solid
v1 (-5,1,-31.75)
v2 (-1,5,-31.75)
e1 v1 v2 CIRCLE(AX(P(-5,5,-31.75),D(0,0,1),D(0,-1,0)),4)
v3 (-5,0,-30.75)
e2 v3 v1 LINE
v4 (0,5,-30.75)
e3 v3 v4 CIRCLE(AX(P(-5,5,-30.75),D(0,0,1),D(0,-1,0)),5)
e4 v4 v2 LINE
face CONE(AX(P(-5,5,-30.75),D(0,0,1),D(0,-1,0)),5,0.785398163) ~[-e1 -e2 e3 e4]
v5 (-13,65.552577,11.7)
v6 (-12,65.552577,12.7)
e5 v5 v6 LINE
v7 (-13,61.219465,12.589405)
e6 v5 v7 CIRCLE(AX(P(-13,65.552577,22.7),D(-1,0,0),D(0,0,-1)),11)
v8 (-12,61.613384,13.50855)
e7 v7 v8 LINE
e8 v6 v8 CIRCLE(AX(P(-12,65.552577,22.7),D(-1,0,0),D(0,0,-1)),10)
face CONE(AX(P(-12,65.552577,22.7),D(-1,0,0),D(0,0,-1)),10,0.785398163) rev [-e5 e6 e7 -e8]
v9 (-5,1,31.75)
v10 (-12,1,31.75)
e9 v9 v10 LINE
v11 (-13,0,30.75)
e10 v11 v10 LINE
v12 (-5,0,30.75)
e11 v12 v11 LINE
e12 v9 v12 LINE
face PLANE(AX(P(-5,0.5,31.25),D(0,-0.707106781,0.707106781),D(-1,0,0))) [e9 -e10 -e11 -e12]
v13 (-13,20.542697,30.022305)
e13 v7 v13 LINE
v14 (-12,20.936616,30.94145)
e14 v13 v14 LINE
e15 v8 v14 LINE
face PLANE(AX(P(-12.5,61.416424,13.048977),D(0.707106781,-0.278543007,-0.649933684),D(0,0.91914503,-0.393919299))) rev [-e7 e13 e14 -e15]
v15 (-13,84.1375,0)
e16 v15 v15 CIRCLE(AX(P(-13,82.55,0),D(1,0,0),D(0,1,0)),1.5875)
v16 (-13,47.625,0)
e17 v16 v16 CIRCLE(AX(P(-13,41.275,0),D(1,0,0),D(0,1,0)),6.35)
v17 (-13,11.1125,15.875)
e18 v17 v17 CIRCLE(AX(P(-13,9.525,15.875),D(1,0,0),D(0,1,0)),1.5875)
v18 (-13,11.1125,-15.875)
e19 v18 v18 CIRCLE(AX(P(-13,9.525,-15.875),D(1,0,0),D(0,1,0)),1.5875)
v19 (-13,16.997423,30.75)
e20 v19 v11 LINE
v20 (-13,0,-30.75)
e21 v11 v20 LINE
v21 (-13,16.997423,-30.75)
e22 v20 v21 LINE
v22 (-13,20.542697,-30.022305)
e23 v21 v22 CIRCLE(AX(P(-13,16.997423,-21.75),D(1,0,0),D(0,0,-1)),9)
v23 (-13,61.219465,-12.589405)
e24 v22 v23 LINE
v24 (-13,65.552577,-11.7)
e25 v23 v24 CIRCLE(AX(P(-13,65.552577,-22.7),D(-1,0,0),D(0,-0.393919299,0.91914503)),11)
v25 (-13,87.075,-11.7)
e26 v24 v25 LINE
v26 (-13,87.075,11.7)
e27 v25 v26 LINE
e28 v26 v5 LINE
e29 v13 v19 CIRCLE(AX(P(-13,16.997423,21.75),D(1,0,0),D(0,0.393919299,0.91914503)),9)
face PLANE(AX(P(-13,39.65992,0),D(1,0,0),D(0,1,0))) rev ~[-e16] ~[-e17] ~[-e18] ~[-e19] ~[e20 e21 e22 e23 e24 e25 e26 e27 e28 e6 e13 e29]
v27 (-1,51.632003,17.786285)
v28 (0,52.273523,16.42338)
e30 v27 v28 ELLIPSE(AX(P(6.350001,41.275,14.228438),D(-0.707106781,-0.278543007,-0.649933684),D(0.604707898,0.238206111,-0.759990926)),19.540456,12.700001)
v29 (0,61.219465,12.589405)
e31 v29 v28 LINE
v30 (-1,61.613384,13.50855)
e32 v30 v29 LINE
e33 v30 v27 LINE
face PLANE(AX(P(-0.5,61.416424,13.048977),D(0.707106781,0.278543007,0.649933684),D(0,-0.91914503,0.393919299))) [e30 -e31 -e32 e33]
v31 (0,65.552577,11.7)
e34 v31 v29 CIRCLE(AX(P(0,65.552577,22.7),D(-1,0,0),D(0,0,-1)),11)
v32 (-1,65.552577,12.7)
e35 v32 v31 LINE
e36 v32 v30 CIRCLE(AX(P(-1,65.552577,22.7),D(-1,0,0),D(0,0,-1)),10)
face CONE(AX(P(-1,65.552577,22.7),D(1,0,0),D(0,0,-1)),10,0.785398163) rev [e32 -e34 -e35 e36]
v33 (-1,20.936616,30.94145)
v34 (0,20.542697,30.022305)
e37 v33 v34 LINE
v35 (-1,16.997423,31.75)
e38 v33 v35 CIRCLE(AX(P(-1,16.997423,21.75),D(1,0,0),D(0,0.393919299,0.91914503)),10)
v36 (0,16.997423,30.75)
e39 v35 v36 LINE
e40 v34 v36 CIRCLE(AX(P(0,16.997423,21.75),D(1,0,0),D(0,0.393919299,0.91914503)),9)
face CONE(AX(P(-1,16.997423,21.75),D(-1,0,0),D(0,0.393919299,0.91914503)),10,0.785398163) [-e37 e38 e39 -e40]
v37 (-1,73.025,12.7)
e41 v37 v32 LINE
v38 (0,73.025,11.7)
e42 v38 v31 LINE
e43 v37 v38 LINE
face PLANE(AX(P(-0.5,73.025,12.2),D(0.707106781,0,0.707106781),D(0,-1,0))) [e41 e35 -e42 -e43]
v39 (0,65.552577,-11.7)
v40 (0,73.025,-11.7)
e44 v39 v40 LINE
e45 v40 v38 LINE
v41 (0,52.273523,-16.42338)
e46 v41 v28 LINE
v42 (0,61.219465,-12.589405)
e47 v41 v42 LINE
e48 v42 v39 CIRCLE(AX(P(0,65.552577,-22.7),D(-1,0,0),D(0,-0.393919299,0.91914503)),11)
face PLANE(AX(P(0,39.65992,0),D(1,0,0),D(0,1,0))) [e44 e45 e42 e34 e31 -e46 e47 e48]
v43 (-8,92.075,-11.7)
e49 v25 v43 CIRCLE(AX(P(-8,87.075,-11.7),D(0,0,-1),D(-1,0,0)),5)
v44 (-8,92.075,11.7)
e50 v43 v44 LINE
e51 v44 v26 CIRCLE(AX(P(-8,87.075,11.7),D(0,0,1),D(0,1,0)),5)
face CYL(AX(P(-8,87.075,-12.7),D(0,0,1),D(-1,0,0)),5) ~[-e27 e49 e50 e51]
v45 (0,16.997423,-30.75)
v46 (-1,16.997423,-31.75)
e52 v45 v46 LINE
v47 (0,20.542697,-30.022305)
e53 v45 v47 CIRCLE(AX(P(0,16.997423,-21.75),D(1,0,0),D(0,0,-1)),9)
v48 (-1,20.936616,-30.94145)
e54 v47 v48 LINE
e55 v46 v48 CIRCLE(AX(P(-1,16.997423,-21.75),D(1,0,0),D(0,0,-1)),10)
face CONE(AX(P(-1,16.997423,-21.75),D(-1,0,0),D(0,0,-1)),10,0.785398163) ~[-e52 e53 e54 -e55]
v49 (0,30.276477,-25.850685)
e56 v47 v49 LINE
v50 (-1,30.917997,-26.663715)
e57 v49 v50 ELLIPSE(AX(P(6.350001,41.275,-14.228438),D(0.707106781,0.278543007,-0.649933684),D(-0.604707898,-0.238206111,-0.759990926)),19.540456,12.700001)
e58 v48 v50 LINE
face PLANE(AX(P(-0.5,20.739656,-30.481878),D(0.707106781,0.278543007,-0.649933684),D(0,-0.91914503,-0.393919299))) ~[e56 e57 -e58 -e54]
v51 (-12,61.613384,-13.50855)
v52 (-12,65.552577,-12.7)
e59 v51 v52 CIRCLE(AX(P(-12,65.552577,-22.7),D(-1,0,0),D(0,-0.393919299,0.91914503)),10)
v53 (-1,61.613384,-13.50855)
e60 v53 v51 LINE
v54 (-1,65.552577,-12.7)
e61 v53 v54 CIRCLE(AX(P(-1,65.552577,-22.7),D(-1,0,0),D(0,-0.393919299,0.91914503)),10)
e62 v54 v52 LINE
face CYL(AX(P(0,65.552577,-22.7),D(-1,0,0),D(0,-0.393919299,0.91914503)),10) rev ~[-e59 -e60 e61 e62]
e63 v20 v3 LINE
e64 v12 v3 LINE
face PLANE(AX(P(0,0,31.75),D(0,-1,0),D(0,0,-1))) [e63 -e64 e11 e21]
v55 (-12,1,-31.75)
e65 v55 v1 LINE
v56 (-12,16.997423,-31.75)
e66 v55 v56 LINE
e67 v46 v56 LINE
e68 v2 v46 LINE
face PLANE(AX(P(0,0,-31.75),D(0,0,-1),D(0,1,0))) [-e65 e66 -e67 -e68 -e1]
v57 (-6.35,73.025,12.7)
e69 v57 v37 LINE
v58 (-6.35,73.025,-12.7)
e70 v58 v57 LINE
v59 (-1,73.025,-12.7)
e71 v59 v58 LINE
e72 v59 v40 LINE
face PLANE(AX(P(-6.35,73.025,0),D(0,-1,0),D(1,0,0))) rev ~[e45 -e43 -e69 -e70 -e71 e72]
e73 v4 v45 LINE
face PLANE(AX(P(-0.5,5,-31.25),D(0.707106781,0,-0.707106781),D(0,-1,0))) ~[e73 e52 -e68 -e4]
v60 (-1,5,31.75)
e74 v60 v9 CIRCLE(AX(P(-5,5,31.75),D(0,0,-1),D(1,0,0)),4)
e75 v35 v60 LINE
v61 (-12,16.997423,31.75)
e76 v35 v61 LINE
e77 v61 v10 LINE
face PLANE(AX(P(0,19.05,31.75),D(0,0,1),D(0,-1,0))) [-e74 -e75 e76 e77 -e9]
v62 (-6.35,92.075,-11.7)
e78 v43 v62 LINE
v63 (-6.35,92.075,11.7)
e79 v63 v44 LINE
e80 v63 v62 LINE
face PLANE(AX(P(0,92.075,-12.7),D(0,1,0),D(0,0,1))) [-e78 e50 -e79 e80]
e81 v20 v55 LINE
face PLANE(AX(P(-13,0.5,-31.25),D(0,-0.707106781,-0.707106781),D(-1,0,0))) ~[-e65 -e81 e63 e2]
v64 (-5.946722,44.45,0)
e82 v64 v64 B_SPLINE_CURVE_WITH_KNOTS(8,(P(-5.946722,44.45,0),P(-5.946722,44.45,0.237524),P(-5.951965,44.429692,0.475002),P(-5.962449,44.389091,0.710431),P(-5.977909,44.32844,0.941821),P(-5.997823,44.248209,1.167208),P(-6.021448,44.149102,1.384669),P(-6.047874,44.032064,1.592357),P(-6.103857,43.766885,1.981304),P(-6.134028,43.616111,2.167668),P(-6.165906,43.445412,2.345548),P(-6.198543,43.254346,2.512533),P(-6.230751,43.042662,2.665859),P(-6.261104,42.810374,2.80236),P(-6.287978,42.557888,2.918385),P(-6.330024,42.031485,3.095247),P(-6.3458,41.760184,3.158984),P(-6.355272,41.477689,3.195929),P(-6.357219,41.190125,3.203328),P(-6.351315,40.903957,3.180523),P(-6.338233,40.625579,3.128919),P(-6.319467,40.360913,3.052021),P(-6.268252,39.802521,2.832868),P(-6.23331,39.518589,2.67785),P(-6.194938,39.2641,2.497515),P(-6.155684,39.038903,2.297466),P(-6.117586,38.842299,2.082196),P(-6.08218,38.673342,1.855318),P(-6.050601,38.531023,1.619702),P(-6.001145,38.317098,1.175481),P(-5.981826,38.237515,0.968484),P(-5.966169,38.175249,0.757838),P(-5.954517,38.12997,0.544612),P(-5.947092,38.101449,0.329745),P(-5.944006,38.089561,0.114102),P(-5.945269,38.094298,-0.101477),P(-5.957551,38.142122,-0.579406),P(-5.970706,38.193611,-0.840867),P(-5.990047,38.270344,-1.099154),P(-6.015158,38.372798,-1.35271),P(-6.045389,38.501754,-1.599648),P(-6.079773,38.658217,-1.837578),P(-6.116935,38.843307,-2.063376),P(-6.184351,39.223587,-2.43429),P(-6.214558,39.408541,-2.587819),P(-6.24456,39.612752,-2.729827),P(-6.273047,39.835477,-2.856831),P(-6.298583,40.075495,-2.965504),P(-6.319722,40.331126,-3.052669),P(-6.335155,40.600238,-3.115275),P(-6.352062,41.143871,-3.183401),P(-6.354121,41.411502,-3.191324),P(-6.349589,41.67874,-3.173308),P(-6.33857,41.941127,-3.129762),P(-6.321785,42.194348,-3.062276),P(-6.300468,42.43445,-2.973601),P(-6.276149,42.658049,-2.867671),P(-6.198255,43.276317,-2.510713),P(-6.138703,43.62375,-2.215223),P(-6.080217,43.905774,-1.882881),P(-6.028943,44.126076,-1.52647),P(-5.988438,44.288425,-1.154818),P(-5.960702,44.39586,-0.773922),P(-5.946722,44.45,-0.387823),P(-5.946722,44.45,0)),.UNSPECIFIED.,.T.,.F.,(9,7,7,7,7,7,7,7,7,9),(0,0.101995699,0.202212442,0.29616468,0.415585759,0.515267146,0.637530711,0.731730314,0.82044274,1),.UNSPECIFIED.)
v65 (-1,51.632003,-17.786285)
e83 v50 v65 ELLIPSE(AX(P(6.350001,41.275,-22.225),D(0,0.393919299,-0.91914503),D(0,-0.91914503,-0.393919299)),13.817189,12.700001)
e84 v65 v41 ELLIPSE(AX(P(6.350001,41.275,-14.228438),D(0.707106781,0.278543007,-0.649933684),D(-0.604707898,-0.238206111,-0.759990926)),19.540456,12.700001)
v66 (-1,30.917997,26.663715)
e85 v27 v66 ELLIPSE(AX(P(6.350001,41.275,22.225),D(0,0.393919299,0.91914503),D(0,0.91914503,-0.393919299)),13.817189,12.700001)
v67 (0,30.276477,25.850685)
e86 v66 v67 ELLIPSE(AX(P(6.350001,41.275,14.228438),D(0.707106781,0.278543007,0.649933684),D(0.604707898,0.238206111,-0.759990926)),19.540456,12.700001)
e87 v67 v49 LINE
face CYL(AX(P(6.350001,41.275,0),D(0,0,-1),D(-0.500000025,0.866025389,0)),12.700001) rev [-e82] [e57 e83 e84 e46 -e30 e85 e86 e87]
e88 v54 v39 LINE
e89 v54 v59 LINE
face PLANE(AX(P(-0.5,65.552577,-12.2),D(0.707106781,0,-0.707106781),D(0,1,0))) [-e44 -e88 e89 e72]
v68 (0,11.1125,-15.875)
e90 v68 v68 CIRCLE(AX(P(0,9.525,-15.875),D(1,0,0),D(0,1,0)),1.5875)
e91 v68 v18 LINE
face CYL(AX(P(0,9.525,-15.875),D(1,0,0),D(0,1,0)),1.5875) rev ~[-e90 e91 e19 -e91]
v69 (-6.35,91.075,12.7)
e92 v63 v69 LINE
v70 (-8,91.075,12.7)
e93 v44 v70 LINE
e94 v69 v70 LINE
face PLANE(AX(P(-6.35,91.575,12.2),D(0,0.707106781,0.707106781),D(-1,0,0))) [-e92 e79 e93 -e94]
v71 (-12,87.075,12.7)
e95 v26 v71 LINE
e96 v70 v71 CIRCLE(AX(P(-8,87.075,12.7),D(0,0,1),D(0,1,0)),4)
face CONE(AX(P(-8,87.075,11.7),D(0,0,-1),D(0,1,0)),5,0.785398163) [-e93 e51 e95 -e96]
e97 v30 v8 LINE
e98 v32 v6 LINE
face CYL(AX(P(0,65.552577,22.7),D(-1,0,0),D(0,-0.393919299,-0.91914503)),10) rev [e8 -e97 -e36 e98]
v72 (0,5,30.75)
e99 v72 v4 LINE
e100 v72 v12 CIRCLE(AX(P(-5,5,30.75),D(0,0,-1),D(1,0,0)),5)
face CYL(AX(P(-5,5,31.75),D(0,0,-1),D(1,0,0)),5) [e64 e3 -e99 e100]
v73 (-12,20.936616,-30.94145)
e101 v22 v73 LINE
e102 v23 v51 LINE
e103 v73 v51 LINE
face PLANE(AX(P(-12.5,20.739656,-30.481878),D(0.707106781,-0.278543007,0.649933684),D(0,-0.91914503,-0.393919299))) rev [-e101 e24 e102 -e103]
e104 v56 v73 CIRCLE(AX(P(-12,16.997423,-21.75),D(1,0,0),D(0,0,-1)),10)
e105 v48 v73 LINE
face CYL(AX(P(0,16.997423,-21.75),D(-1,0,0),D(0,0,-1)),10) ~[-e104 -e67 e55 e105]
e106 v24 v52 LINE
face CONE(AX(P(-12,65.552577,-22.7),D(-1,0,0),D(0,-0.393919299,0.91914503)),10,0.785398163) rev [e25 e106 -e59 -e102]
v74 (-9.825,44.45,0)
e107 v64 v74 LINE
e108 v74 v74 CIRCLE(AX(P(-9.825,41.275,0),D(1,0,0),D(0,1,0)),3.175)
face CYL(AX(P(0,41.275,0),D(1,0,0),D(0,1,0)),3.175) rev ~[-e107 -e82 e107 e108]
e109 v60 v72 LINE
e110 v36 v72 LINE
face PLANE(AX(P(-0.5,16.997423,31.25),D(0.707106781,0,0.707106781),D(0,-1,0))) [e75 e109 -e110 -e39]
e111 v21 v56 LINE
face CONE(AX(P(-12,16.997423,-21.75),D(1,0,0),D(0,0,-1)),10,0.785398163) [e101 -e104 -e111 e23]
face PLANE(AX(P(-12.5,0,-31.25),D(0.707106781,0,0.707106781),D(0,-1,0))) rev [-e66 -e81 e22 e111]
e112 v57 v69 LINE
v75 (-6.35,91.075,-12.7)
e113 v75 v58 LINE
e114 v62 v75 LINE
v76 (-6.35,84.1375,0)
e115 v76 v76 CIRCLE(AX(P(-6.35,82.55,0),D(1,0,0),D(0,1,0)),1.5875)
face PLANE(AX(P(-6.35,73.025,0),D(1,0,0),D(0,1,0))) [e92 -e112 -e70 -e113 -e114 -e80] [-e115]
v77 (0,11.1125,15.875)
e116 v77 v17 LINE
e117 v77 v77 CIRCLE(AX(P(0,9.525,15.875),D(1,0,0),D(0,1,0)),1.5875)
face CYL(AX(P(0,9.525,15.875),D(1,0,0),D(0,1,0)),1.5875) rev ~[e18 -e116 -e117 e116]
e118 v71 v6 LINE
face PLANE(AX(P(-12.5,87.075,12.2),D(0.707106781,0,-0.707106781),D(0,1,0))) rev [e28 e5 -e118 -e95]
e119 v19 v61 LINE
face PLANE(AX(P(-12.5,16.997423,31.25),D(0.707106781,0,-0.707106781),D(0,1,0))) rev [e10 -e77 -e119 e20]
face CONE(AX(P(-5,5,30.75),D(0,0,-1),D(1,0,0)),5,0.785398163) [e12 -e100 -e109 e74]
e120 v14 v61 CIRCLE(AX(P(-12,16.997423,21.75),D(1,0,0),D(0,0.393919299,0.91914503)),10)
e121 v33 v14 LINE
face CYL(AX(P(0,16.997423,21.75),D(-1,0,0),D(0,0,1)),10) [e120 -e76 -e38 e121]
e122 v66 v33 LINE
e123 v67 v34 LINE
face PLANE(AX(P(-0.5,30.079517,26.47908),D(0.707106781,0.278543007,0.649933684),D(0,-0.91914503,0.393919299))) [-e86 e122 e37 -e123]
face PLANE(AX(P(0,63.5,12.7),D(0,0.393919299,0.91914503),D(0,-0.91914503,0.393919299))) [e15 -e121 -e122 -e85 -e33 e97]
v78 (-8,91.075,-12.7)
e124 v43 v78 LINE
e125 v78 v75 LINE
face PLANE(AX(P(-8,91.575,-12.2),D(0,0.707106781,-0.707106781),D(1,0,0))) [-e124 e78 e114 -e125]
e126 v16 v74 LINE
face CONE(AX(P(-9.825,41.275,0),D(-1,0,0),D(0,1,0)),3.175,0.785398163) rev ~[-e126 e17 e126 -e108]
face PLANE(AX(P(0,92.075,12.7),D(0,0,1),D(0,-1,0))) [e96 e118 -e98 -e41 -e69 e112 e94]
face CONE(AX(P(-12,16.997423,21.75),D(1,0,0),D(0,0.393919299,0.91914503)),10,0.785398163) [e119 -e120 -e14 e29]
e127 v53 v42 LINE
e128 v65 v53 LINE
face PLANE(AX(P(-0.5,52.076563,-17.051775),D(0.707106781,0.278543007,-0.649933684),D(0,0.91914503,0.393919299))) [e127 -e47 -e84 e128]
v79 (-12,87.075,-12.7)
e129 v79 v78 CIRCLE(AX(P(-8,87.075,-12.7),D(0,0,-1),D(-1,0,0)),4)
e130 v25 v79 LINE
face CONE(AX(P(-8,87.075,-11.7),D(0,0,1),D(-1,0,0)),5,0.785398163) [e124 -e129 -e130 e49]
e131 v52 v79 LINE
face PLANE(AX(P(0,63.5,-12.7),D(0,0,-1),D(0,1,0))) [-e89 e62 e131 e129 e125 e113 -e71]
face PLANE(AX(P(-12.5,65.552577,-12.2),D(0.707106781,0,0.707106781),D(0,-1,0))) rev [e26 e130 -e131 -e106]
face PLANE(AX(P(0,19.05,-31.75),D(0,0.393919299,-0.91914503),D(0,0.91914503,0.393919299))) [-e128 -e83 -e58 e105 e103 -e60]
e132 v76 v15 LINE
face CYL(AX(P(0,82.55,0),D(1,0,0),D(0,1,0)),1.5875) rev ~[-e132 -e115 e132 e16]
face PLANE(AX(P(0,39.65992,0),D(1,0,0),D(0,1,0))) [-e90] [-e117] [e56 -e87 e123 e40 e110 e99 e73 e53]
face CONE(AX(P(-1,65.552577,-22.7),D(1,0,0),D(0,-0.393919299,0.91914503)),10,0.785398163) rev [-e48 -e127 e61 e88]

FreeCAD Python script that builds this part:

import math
import FreeCAD as App
import Part
import Sketcher
from FreeCAD import Vector
Q = App.Units.Quantity


def edges_at(feature, points):
    """Names of the edges that pass closest to the given points."""
    edges = feature.Shape.Edges
    near = lambda p: min(range(len(edges)), key=lambda i: edges[i].distToShape(Part.Vertex(*p))[0])
    return sorted({f"Edge{near(p) + 1}" for p in points})

doc = App.newDocument("Part")
body = doc.addObject("PartDesign::Body", "Body")

# Sketch on YZ plane
sketch1 = body.newObject("Sketcher::SketchObject", "Sketch")
sketch1.AttachmentSupport = (doc.getObject("YZ_Plane"), [""])
sketch1.MapMode = "FlatFace"
sketch1.addGeometry(Part.LineSegment(Vector(0, 31.8, 0), Vector(0, -31.8, 0)), False)
sketch1.addGeometry(Part.LineSegment(Vector(0, -31.8, 0), Vector(19.1, -31.8, 0)), False)
sketch1.addGeometry(Part.LineSegment(Vector(19.1, -31.8, 0), Vector(63.5, -12.7, 0)), False)
sketch1.addGeometry(Part.LineSegment(Vector(63.5, -12.7, 0), Vector(92.1, -12.7, 0)), False)
sketch1.addGeometry(Part.LineSegment(Vector(92.1, -12.7, 0), Vector(92.1, 12.7, 0)), False)
sketch1.addGeometry(Part.LineSegment(Vector(92.1, 12.7, 0), Vector(63.5, 12.7, 0)), False)
sketch1.addGeometry(Part.LineSegment(Vector(63.5, 12.7, 0), Vector(19.1, 31.8, 0)), False)
sketch1.addGeometry(Part.LineSegment(Vector(19.1, 31.8, 0), Vector(0, 31.8, 0)), False)
sketch1.addGeometry(Part.Circle(Vector(9.5, -15.9, 0), Vector(0, 0, 1), 1.6), False)
sketch1.addGeometry(Part.Circle(Vector(41.3, 0, 0), Vector(0, 0, 1), 3.2), False)
sketch1.addGeometry(Part.Circle(Vector(9.5, 15.9, 0), Vector(0, 0, 1), 1.6), False)
sketch1.addGeometry(Part.Circle(Vector(82.5, 0, 0), Vector(0, 0, 1), 1.6), False)
sketch1.addConstraint(Sketcher.Constraint("Coincident", 0, 2, 1, 1))
sketch1.addConstraint(Sketcher.Constraint("Coincident", 1, 2, 2, 1))
sketch1.addConstraint(Sketcher.Constraint("Coincident", 2, 2, 3, 1))
sketch1.addConstraint(Sketcher.Constraint("Coincident", 3, 2, 4, 1))
sketch1.addConstraint(Sketcher.Constraint("Coincident", 4, 2, 5, 1))
sketch1.addConstraint(Sketcher.Constraint("Coincident", 5, 2, 6, 1))
sketch1.addConstraint(Sketcher.Constraint("Coincident", 6, 2, 7, 1))
sketch1.addConstraint(Sketcher.Constraint("Coincident", 7, 2, 0, 1))
sketch1.addConstraint(Sketcher.Constraint("Vertical", 0))
sketch1.addConstraint(Sketcher.Constraint("Horizontal", 1))
sketch1.addConstraint(Sketcher.Constraint("Horizontal", 3))
sketch1.addConstraint(Sketcher.Constraint("Vertical", 4))
sketch1.addConstraint(Sketcher.Constraint("Horizontal", 5))
sketch1.addConstraint(Sketcher.Constraint("Horizontal", 7))
sketch1.addConstraint(Sketcher.Constraint("Equal", 8, 10))
sketch1.addConstraint(Sketcher.Constraint("Equal", 10, 11))
sketch1.addConstraint(Sketcher.Constraint("Symmetric", 0, 2, 7, 2, -1, 1))
sketch1.addConstraint(Sketcher.Constraint("Symmetric", 8, 3, 10, 3, -1))
sketch1.addConstraint(Sketcher.Constraint("Symmetric", 2, 2, 5, 2, -1))
sketch1.addConstraint(Sketcher.Constraint("PointOnObject", 9, 3, -1))
sketch1.addConstraint(Sketcher.Constraint("PointOnObject", 11, 3, -1))
sketch1.addConstraint(Sketcher.Constraint("Vertical", 1, 2, 6, 2))
sketch1.addConstraint(Sketcher.Constraint("Diameter", 9, Q("0.25 in")))
sketch1.addConstraint(Sketcher.Constraint("DistanceY", 4, 1, 4, 2, Q("1 in")))
sketch1.addConstraint(Sketcher.Constraint("Diameter", 8, Q("0.125 in")))
sketch1.addConstraint(Sketcher.Constraint("DistanceY", 0, 2, 0, 1, Q("2.5 in")))
sketch1.addConstraint(Sketcher.Constraint("DistanceX", 9, 3, 3, 2, Q("2 in")))
sketch1.addConstraint(Sketcher.Constraint("DistanceX", 1, 1, 1, 2, Q("0.75 in")))
sketch1.addConstraint(Sketcher.Constraint("DistanceX", -1, 1, 2, 2, Q("2.5 in")))
sketch1.addConstraint(Sketcher.Constraint("DistanceX", 1, 2, 11, 3, Q("2.5 in")))
sketch1.addConstraint(Sketcher.Constraint("DistanceX", 3, 1, 3, 2, Q("1.125 in")))
sketch1.addConstraint(Sketcher.Constraint("DistanceX", 8, 3, 9, 3, Q("1.25 in")))
sketch1.addConstraint(Sketcher.Constraint("DistanceY", 8, 3, 10, 3, Q("1.25 in")))
pad1 = body.newObject("PartDesign::Pad", "Pad")
pad1.Profile = sketch1
pad1.Length = 13
pad1.Reversed = True

# Sketch on XY plane
sketch2 = body.newObject("Sketcher::SketchObject", "Sketch001")
sketch2.AttachmentSupport = (doc.getObject("XY_Plane"), [""])
sketch2.MapMode = "FlatFace"
sketch2.addGeometry(Part.LineSegment(Vector(0, 30, 0), Vector(0, 52, 0)), False)
sketch2.addGeometry(Part.ArcOfCircle(Part.Circle(Vector(6, 41, 0), Vector(0, 0, 1), 13), math.radians(120), math.radians(240)), False)
sketch2.addGeometry(Part.LineSegment(Vector(-6, 92, 0), Vector(-6, 73, 0)), False)
sketch2.addGeometry(Part.LineSegment(Vector(-6, 73, 0), Vector(0, 73, 0)), False)
sketch2.addGeometry(Part.LineSegment(Vector(0, 73, 0), Vector(0, 92, 0)), False)
sketch2.addGeometry(Part.LineSegment(Vector(0, 92, 0), Vector(-6, 92, 0)), False)
sketch2.addConstraint(Sketcher.Constraint("Coincident", 0, 1, 1, 2))
sketch2.addConstraint(Sketcher.Constraint("Coincident", 1, 1, 0, 2))
sketch2.addConstraint(Sketcher.Constraint("Coincident", 2, 2, 3, 1))
sketch2.addConstraint(Sketcher.Constraint("Coincident", 3, 2, 4, 1))
sketch2.addConstraint(Sketcher.Constraint("Coincident", 4, 2, 5, 1))
sketch2.addConstraint(Sketcher.Constraint("Coincident", 5, 2, 2, 1))
sketch2.addConstraint(Sketcher.Constraint("Vertical", 0))
sketch2.addConstraint(Sketcher.Constraint("Vertical", 2))
sketch2.addConstraint(Sketcher.Constraint("Horizontal", 3))
sketch2.addConstraint(Sketcher.Constraint("Vertical", 4))
sketch2.addConstraint(Sketcher.Constraint("Horizontal", 5))
sketch2.addConstraint(Sketcher.Constraint("PointOnObject", 0, 1, -2))
sketch2.addConstraint(Sketcher.Constraint("PointOnObject", 3, 2, -2))
sketch2.addConstraint(Sketcher.Constraint("Radius", 1, Q("0.5 in")))
sketch2.addConstraint(Sketcher.Constraint("DistanceY", 1, 3, 4, 2, Q("2 in")))
sketch2.addConstraint(Sketcher.Constraint("DistanceX", 3, 1, 3, 2, Q("0.25 in")))
sketch2.addConstraint(Sketcher.Constraint("DistanceY", 2, 2, 2, 1, Q("0.75 in")))
sketch2.addConstraint(Sketcher.Constraint("DistanceX", 2, 2, 1, 3, Q("0.5 in")))
sketch2.addConstraint(Sketcher.Constraint("DistanceY", -1, 1, 1, 3, Q("1.625 in")))
pocket1 = body.newObject("PartDesign::Pocket", "Pocket")
pocket1.Profile = sketch2
pocket1.Length = 75
pocket1.Midplane = True
doc.recompute()

fillet = body.newObject("PartDesign::Fillet", "Fillet")
fillet.Base = (pocket1, edges_at(pocket1, [
    (-6.5, 19.05, 31.75),
    (-6.5, 63.5, 12.7),
    (-6.5, 63.5, -12.7),
    (-6.5, 19.05, -31.75),
]))
fillet.Radius = 10
doc.recompute()

fillet2 = body.newObject("PartDesign::Fillet", "Fillet001")
fillet2.Base = (fillet, edges_at(fillet, [(-13, 92.075, 0), (0, 0, 0)]))
fillet2.Radius = 5
doc.recompute()

chamfer = body.newObject("PartDesign::Chamfer", "Chamfer")
chamfer.Base = (fillet2, edges_at(fillet2, [
    (-13, 76.314, 12.7),
    (0, 10.999, 31.75),
    (0, 25.607, 28.94),
    (0, 56.943, 15.51),
    (0, 69.289, -12.7),
    (0, 25.607, -28.94),
    (0, 56.943, -15.51),
    (-13, 76.314, -12.7),
]))
chamfer.Size = 1
doc.recompute()

chamfer2 = body.newObject("PartDesign::Chamfer", "Chamfer001")
chamfer2.Base = (chamfer, edges_at(chamfer, [(-13, 38.1, 0)]))
chamfer2.Size = Q("0.125 in")

doc.recompute()
